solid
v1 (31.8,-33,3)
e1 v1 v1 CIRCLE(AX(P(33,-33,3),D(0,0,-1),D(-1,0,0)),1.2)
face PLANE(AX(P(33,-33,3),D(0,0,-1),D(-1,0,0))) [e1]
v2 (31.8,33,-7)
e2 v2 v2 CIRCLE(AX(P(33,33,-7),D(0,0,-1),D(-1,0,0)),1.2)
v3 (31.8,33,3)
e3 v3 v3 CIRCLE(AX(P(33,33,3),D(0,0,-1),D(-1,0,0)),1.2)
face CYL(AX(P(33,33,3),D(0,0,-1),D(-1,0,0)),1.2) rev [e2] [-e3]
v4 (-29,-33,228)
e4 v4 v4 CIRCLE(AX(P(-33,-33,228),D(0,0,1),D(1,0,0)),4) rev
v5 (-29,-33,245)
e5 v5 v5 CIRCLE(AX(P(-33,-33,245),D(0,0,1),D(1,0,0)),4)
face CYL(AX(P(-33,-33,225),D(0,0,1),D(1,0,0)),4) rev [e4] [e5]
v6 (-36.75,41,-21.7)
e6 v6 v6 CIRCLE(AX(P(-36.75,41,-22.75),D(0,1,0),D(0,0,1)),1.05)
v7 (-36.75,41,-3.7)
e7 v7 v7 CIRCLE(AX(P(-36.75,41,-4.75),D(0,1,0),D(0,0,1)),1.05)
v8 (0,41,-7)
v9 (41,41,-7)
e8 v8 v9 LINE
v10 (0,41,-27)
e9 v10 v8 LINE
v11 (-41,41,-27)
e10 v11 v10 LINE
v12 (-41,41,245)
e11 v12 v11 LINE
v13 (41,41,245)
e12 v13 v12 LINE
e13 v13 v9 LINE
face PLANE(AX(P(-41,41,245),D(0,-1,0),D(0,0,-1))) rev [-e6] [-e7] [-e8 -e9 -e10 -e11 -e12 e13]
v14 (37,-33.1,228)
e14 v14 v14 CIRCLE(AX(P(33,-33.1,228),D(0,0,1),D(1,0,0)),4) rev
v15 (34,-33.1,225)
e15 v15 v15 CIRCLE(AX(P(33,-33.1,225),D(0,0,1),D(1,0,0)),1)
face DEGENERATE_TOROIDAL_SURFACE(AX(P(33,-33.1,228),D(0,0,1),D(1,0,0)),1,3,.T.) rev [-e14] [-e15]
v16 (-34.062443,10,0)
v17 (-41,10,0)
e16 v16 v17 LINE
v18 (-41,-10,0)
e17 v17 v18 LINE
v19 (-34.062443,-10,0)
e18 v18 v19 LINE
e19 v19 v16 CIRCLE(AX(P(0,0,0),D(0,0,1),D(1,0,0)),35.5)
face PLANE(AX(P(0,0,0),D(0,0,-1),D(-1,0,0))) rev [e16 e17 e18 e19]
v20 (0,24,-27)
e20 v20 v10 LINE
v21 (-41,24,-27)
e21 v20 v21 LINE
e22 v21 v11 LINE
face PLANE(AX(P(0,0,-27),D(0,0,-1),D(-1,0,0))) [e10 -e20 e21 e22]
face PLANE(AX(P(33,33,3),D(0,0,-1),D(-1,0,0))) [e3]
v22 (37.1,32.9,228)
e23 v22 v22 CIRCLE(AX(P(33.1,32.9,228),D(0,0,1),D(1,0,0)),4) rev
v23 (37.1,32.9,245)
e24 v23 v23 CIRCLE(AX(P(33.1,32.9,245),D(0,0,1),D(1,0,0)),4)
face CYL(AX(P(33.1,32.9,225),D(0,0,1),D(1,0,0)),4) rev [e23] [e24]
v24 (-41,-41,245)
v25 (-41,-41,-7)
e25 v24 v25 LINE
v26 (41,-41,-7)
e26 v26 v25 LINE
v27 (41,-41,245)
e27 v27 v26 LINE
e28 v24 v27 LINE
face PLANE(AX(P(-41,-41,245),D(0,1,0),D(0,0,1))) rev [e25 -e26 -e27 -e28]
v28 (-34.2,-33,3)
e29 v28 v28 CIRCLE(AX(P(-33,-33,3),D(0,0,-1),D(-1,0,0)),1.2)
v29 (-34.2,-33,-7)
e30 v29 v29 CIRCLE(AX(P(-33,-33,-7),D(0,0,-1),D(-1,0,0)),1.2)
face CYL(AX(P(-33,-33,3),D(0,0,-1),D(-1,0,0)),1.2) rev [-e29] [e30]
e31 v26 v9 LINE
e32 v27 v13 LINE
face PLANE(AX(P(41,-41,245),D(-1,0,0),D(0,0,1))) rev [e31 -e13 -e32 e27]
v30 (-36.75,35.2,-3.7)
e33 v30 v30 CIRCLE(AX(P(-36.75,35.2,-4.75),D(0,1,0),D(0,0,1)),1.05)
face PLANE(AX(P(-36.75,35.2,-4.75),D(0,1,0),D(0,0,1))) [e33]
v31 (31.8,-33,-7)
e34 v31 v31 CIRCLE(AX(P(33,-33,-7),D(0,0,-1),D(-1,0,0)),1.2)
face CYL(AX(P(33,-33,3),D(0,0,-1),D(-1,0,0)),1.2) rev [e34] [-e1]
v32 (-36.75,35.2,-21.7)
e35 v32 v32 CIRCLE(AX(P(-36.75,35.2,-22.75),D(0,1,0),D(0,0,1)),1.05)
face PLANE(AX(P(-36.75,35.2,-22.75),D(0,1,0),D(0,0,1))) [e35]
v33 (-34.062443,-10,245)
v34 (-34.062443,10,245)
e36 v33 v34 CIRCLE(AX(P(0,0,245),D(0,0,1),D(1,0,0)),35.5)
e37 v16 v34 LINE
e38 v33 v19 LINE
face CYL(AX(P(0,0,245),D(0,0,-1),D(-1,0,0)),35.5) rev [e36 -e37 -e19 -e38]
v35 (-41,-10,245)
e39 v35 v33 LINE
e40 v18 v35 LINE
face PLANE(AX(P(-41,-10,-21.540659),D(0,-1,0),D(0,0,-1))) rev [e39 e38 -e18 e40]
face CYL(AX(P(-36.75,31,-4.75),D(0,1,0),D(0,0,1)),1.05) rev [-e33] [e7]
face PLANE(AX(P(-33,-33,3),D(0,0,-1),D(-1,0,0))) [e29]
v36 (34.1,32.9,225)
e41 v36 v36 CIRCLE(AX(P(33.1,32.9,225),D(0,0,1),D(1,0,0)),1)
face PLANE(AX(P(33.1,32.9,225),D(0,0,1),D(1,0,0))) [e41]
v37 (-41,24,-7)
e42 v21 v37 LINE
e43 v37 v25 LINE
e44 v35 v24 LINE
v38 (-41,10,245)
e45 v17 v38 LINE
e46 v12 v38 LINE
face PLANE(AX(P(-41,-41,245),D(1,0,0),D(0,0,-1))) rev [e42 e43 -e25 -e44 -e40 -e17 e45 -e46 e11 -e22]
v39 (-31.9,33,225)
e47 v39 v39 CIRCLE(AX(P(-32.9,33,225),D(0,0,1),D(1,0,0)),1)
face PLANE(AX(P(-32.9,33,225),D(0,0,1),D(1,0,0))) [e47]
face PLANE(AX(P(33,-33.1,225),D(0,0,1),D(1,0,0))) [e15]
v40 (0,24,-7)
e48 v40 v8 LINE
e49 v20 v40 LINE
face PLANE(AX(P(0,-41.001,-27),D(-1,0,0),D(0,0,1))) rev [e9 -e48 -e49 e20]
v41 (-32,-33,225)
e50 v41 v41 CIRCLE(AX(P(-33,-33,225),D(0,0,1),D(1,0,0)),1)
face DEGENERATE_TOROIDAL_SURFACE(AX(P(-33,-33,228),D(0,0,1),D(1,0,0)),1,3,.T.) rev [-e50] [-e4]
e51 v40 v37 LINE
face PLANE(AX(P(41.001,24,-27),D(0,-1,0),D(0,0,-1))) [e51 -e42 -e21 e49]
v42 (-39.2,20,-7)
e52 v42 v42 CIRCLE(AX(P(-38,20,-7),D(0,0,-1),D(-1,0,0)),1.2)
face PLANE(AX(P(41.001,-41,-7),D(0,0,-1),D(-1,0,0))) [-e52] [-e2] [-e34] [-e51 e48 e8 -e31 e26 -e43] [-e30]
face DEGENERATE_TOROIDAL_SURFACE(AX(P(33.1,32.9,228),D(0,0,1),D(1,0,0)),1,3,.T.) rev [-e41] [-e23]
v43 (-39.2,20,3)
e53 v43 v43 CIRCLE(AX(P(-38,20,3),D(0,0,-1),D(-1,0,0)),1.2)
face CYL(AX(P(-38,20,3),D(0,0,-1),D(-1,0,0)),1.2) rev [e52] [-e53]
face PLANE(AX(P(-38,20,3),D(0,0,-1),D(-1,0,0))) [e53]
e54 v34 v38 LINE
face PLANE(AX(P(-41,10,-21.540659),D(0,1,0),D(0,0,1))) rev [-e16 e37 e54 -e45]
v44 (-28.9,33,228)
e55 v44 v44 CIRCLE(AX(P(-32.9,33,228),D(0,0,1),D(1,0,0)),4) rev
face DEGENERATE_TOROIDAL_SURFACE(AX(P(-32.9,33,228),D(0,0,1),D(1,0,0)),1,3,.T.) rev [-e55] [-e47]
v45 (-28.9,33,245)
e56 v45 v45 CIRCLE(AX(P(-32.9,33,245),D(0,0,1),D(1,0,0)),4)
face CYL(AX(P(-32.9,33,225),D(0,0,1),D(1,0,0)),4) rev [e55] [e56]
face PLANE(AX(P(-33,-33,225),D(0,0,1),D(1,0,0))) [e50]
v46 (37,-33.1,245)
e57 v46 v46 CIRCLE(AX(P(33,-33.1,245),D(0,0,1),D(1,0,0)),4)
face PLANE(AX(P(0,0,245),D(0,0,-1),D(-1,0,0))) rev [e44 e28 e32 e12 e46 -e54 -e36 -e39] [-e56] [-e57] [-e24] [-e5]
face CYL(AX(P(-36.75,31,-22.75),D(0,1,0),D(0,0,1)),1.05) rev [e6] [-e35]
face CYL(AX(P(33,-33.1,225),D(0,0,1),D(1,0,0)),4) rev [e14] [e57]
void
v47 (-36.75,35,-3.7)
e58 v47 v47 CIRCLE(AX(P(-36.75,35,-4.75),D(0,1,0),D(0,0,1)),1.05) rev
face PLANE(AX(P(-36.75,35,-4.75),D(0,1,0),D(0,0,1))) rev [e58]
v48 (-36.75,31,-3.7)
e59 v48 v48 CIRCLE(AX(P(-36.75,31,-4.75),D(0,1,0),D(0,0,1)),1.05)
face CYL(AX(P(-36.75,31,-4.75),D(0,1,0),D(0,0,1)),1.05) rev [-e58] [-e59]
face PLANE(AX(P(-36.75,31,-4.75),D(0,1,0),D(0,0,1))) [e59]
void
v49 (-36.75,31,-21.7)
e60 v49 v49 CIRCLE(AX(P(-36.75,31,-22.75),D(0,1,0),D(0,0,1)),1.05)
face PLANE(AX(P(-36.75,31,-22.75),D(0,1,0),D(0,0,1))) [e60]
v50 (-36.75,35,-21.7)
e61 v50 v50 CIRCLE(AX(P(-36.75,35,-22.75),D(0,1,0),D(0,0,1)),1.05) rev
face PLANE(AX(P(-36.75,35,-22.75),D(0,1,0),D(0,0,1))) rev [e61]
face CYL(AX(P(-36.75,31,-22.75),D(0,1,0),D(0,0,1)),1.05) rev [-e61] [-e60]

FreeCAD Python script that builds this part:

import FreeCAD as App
import Part
import Sketcher
from FreeCAD import Vector
Q = App.Units.Quantity


def edges_at(feature, points):
    """Names of the edges that pass closest to the given points."""
    edges = feature.Shape.Edges
    near = lambda p: min(range(len(edges)), key=lambda i: edges[i].distToShape(Part.Vertex(*p))[0])
    return sorted({f"Edge{near(p) + 1}" for p in points})


def add_polygon(sketch, points):
    """Adds a closed chain of lines whose ends are joined by coincident constraints."""
    first, n = sketch.GeometryCount, len(points)
    for a, b in zip(points, points[1:] + points[:1]):
        sketch.addGeometry(Part.LineSegment(App.Vector(*a, 0), App.Vector(*b, 0)), False)
    for i in range(n):
        sketch.addConstraint(Sketcher.Constraint("Coincident", first + i, 2, first + (i + 1) % n, 1))

doc = App.newDocument("Part")
params = doc.addObject("Spreadsheet::Sheet", "Params")
for row, (alias, value) in enumerate([
    ("sketch1_diameter", "71 mm"),
    ("sketch1_width", "82 mm"),
    ("pad1_length", "245 mm"),
    ("sketch2_width", "82 mm"),
    ("pad2_length", "27 mm"),
    ("sketch3_width", "8 mm"),
    ("sketch3_height", "20 mm"),
    ("pocket1_length", "245 mm"),
    ("sketch4_diameter", "8 mm"),
    ("pocket2_length", "20 mm"),
    ("fillet_radius", "3 mm"),
    ("fillet2_radius", "3 mm"),
    ("fillet3_radius", "3 mm"),
    ("fillet4_radius", "3 mm"),
    ("sketch5_diameter", "2.1 mm"),
    ("pocket3_length", "10 mm"),
    ("sketch6_diameter", "2.1 mm"),
    ("pad3_length", "0.2 mm"),
    ("sketch7_width", "65 mm"),
    ("sketch7_height", "20 mm"),
    ("sketch8_width", "41 mm"),
    ("sketch8_height", "20 mm"),
    ("sketch9_diameter", "2.4 mm"),
    ("pocket6_length", "10 mm"),
], start=1):
    params.set(f"A{row}", alias)
    params.set(f"B{row}", "=" + value)
    params.setAlias(f"B{row}", alias)

body = doc.addObject("PartDesign::Body", "Body")

sketch1 = body.newObject("Sketcher::SketchObject", "Sketch")
sketch1.AttachmentSupport = (doc.getObject("XY_Plane"), [""])
sketch1.MapMode = "FlatFace"
add_polygon(sketch1, [(-41, 41), (-41, -41), (41, -41), (41, 41)])
sketch1.addGeometry(Part.Circle(Vector(0, 0, 0), Vector(0, 0, 1), 35.5), False)
sketch1.addConstraint(Sketcher.Constraint("Vertical", 0))
sketch1.addConstraint(Sketcher.Constraint("Horizontal", 1))
sketch1.addConstraint(Sketcher.Constraint("Vertical", 2))
sketch1.addConstraint(Sketcher.Constraint("Horizontal", 3))
sketch1.addConstraint(Sketcher.Constraint("Coincident", 4, 3, -1, 1))
sketch1.addConstraint(Sketcher.Constraint("Symmetric", 0, 2, 2, 2, -1, 1))
sketch1.addConstraint(Sketcher.Constraint("Equal", 3, 0))
sketch1.addConstraint(Sketcher.Constraint("Diameter", 4, Q("71 mm")))
sketch1.addConstraint(Sketcher.Constraint("DistanceX", 1, 1, 1, 2, Q("82 mm")))
sketch1.setExpression("Constraints[11]", "Params.sketch1_diameter")
sketch1.setExpression("Constraints[12]", "Params.sketch1_width")
pad1 = body.newObject("PartDesign::Pad", "Pad")
pad1.Profile = sketch1
pad1.setExpression("Length", "Params.pad1_length")

sketch2 = body.newObject("Sketcher::SketchObject", "Sketch001")
sketch2.AttachmentSupport = (doc.getObject("XY_Plane"), [""])
sketch2.MapMode = "FlatFace"
add_polygon(sketch2, [(41, 41), (41, -41), (-41, -41), (-41, 41)])
sketch2.addConstraint(Sketcher.Constraint("Vertical", 0))
sketch2.addConstraint(Sketcher.Constraint("Horizontal", 1))
sketch2.addConstraint(Sketcher.Constraint("Vertical", 2))
sketch2.addConstraint(Sketcher.Constraint("Horizontal", 3))
sketch2.addConstraint(Sketcher.Constraint("Symmetric", 0, 2, 2, 2, -1, 1))
sketch2.addConstraint(Sketcher.Constraint("Equal", 3, 0))
sketch2.addConstraint(Sketcher.Constraint("DistanceX", 1, 2, 1, 1, Q("82 mm")))
sketch2.setExpression("Constraints[10]", "Params.sketch2_width")
pad2 = body.newObject("PartDesign::Pad", "Pad001")
pad2.Profile = sketch2
pad2.setExpression("Length", "Params.pad2_length")
pad2.Reversed = True

sketch3 = body.newObject("Sketcher::SketchObject", "Sketch002")
sketch3.AttachmentSupport = (doc.getObject("XY_Plane"), [""])
sketch3.MapMode = "FlatFace"
sketch3.AttachmentOffset = App.Placement(Vector(0, 0, 245), App.Rotation())
add_polygon(sketch3, [(-41, 10), (-41, -10), (-33, -10), (-33, 10)])
sketch3.addConstraint(Sketcher.Constraint("Vertical", 0))
sketch3.addConstraint(Sketcher.Constraint("Horizontal", 1))
sketch3.addConstraint(Sketcher.Constraint("Vertical", 2))
sketch3.addConstraint(Sketcher.Constraint("Horizontal", 3))
sketch3.addConstraint(Sketcher.Constraint("DistanceX", 1, 1, 1, 2, Q("8 mm")))
sketch3.addConstraint(Sketcher.Constraint("DistanceY", 0, 2, 0, 1, Q("20 mm")))
sketch3.addConstraint(Sketcher.Constraint("DistanceX", 0, 2, -1, 1, Q("41 mm")))
sketch3.addConstraint(Sketcher.Constraint("DistanceY", 0, 2, -1, 1, Q("10 mm")))
sketch3.setExpression("Constraints[8]", "Params.sketch3_width")
sketch3.setExpression("Constraints[9]", "Params.sketch3_height")
pocket1 = body.newObject("PartDesign::Pocket", "Pocket")
pocket1.Profile = sketch3
pocket1.setExpression("Length", "Params.pocket1_length")

sketch4 = body.newObject("Sketcher::SketchObject", "Sketch003")
sketch4.AttachmentSupport = (doc.getObject("XY_Plane"), [""])
sketch4.MapMode = "FlatFace"
sketch4.AttachmentOffset = App.Placement(Vector(0, 0, 245), App.Rotation())
sketch4.addGeometry(Part.Circle(Vector(-32.9, 33, 0), Vector(0, 0, 1), 4), False)
sketch4.addGeometry(Part.Circle(Vector(33.1, 32.9, 0), Vector(0, 0, 1), 4), False)
sketch4.addGeometry(Part.Circle(Vector(33, -33.1, 0), Vector(0, 0, 1), 4), False)
sketch4.addGeometry(Part.Circle(Vector(-33, -33, 0), Vector(0, 0, 1), 4), False)
sketch4.addConstraint(Sketcher.Constraint("Equal", 0, 1))
sketch4.addConstraint(Sketcher.Constraint("Equal", 1, 2))
sketch4.addConstraint(Sketcher.Constraint("Equal", 2, 3))
sketch4.addConstraint(Sketcher.Constraint("Diameter", 0, Q("8 mm")))
sketch4.addConstraint(Sketcher.Constraint("DistanceY", -1, 1, 0, 3, Q("33 mm")))
sketch4.addConstraint(Sketcher.Constraint("DistanceX", -1, 1, 2, 3, Q("33 mm")))
sketch4.addConstraint(Sketcher.Constraint("DistanceX", 3, 3, -1, 1, Q("33 mm")))
sketch4.addConstraint(Sketcher.Constraint("DistanceY", 3, 3, -1, 1, Q("33 mm")))
sketch4.addConstraint(Sketcher.Constraint("DistanceX", 0, 3, 1, 3, Q("66 mm")))
sketch4.addConstraint(Sketcher.Constraint("DistanceY", 2, 3, 1, 3, Q("66 mm")))
sketch4.addConstraint(Sketcher.Constraint("DistanceX", 0, 3, -1, 1, Q("32.9 mm")))
sketch4.addConstraint(Sketcher.Constraint("DistanceY", -1, 1, 1, 3, Q("32.9 mm")))
sketch4.setExpression("Constraints[3]", "Params.sketch4_diameter")
pocket2 = body.newObject("PartDesign::Pocket", "Pocket001")
pocket2.Profile = sketch4
pocket2.setExpression("Length", "Params.pocket2_length")
doc.recompute()

fillet = body.newObject("PartDesign::Fillet", "Fillet")
fillet.Base = (pocket2, edges_at(pocket2, [(-36.9, 33, 225)]))
fillet.setExpression("Radius", "Params.fillet_radius")
doc.recompute()

fillet2 = body.newObject("PartDesign::Fillet", "Fillet001")
fillet2.Base = (fillet, edges_at(fillet, [(29.1, 32.9, 225)]))
fillet2.setExpression("Radius", "Params.fillet2_radius")
doc.recompute()

fillet3 = body.newObject("PartDesign::Fillet", "Fillet002")
fillet3.Base = (fillet2, edges_at(fillet2, [(-37, -33, 225)]))
fillet3.setExpression("Radius", "Params.fillet3_radius")
doc.recompute()

fillet4 = body.newObject("PartDesign::Fillet", "Fillet003")
fillet4.Base = (fillet3, edges_at(fillet3, [(29, -33.1, 225)]))
fillet4.setExpression("Radius", "Params.fillet4_radius")

sketch5 = body.newObject("Sketcher::SketchObject", "Sketch004")
sketch5.AttachmentSupport = (doc.getObject("XZ_Plane"), [""])
sketch5.MapMode = "FlatFace"
sketch5.AttachmentOffset = App.Placement(Vector(0, 0, -41), App.Rotation())
sketch5.addGeometry(Part.Circle(Vector(-36.75, -22.75, 0), Vector(0, 0, 1), 1.05), False)
sketch5.addGeometry(Part.Circle(Vector(-36.75, -4.75, 0), Vector(0, 0, 1), 1.05), False)
sketch5.addConstraint(Sketcher.Constraint("Equal", 0, 1))
sketch5.addConstraint(Sketcher.Constraint("Vertical", 0, 3, 1, 3))
sketch5.addConstraint(Sketcher.Constraint("Diameter", 0, Q("2.1 mm")))
sketch5.addConstraint(Sketcher.Constraint("DistanceY", 0, 3, 1, 3, Q("18 mm")))
sketch5.addConstraint(Sketcher.Constraint("DistanceX", 0, 3, -1, 1, Q("36.75 mm")))
sketch5.addConstraint(Sketcher.Constraint("DistanceY", 0, 3, -1, 1, Q("22.75 mm")))
sketch5.setExpression("Constraints[2]", "Params.sketch5_diameter")
pocket3 = body.newObject("PartDesign::Pocket", "Pocket002")
pocket3.Profile = sketch5
pocket3.setExpression("Length", "Params.pocket3_length")
pocket3.Reversed = True

sketch6 = body.newObject("Sketcher::SketchObject", "Sketch005")
sketch6.AttachmentSupport = (doc.getObject("XZ_Plane"), [""])
sketch6.MapMode = "FlatFace"
sketch6.AttachmentOffset = App.Placement(Vector(0, 0, -35.2), App.Rotation())
sketch6.addGeometry(Part.Circle(Vector(-36.75, -22.75, 0), Vector(0, 0, 1), 1.05), False)
sketch6.addGeometry(Part.Circle(Vector(-36.75, -4.75, 0), Vector(0, 0, 1), 1.05), False)
sketch6.addConstraint(Sketcher.Constraint("Equal", 0, 1))
sketch6.addConstraint(Sketcher.Constraint("Vertical", 0, 3, 1, 3))
sketch6.addConstraint(Sketcher.Constraint("Diameter", 0, Q("2.1 mm")))
sketch6.addConstraint(Sketcher.Constraint("DistanceY", 0, 3, 1, 3, Q("18 mm")))
sketch6.addConstraint(Sketcher.Constraint("DistanceX", 0, 3, -1, 1, Q("36.75 mm")))
sketch6.addConstraint(Sketcher.Constraint("DistanceY", 0, 3, -1, 1, Q("22.75 mm")))
sketch6.setExpression("Constraints[2]", "Params.sketch6_diameter")
pad3 = body.newObject("PartDesign::Pad", "Pad002")
pad3.Profile = sketch6
pad3.setExpression("Length", "Params.pad3_length")

sketch7 = body.newObject("Sketcher::SketchObject", "Sketch006")
sketch7.AttachmentSupport = (doc.getObject("YZ_Plane"), [""])
sketch7.MapMode = "FlatFace"
sketch7.AttachmentOffset = App.Placement(Vector(0, 0, -41), App.Rotation())
add_polygon(sketch7, [(24, -7), (-41, -7), (-41, -27), (24, -27)])
sketch7.addConstraint(Sketcher.Constraint("Horizontal", 0))
sketch7.addConstraint(Sketcher.Constraint("Vertical", 1))
sketch7.addConstraint(Sketcher.Constraint("Horizontal", 2))
sketch7.addConstraint(Sketcher.Constraint("Vertical", 3))
sketch7.addConstraint(Sketcher.Constraint("DistanceX", 0, 2, 0, 1, Q("65 mm")))
sketch7.addConstraint(Sketcher.Constraint("DistanceY", 1, 2, 1, 1, Q("20 mm")))
sketch7.addConstraint(Sketcher.Constraint("DistanceX", 0, 2, -1, 1, Q("41 mm")))
sketch7.addConstraint(Sketcher.Constraint("DistanceY", 0, 2, -1, 1, Q("7 mm")))
sketch7.setExpression("Constraints[8]", "Params.sketch7_width")
sketch7.setExpression("Constraints[9]", "Params.sketch7_height")
pocket4 = body.newObject("PartDesign::Pocket", "Pocket003")
pocket4.Profile = sketch7
pocket4.Type = "UpToFirst"
pocket4.Reversed = True

sketch8 = body.newObject("Sketcher::SketchObject", "Sketch007")
sketch8.AttachmentSupport = (doc.getObject("XZ_Plane"), [""])
sketch8.MapMode = "FlatFace"
sketch8.AttachmentOffset = App.Placement(Vector(0, 0, -41), App.Rotation())
add_polygon(sketch8, [(0, -27), (0, -7), (41, -7), (41, -27)])
sketch8.addConstraint(Sketcher.Constraint("Vertical", 0))
sketch8.addConstraint(Sketcher.Constraint("Horizontal", 1))
sketch8.addConstraint(Sketcher.Constraint("Vertical", 2))
sketch8.addConstraint(Sketcher.Constraint("Horizontal", 3))
sketch8.addConstraint(Sketcher.Constraint("PointOnObject", 0, 2, -2))
sketch8.addConstraint(Sketcher.Constraint("DistanceX", 1, 1, 1, 2, Q("41 mm")))
sketch8.addConstraint(Sketcher.Constraint("DistanceY", 0, 1, 0, 2, Q("20 mm")))
sketch8.addConstraint(Sketcher.Constraint("DistanceY", 0, 2, -1, 1, Q("7 mm")))
sketch8.setExpression("Constraints[9]", "Params.sketch8_width")
sketch8.setExpression("Constraints[10]", "Params.sketch8_height")
pocket5 = body.newObject("PartDesign::Pocket", "Pocket004")
pocket5.Profile = sketch8
pocket5.Type = "UpToFirst"
pocket5.Reversed = True

sketch9 = body.newObject("Sketcher::SketchObject", "Sketch008")
sketch9.AttachmentSupport = (doc.getObject("XY_Plane"), [""])
sketch9.MapMode = "FlatFace"
sketch9.AttachmentOffset = App.Placement(Vector(0, 0, -7), App.Rotation())
sketch9.addGeometry(Part.Circle(Vector(33, 33, 0), Vector(0, 0, 1), 1.2), False)
sketch9.addGeometry(Part.Circle(Vector(33, -33, 0), Vector(0, 0, 1), 1.2), False)
sketch9.addGeometry(Part.Circle(Vector(-33, -33, 0), Vector(0, 0, 1), 1.2), False)
sketch9.addGeometry(Part.Circle(Vector(-38, 20, 0), Vector(0, 0, 1), 1.2), False)
sketch9.addConstraint(Sketcher.Constraint("Equal", 0, 1))
sketch9.addConstraint(Sketcher.Constraint("Equal", 1, 2))
sketch9.addConstraint(Sketcher.Constraint("Equal", 2, 3))
sketch9.addConstraint(Sketcher.Constraint("Symmetric", 0, 3, 2, 3, -1, 1))
sketch9.addConstraint(Sketcher.Constraint("Symmetric", 1, 3, 2, 3, -2))
sketch9.addConstraint(Sketcher.Constraint("Diameter", 0, Q("2.4 mm")))
sketch9.addConstraint(Sketcher.Constraint("DistanceX", -1, 1, 0, 3, Q("33 mm")))
sketch9.addConstraint(Sketcher.Constraint("DistanceY", -1, 1, 0, 3, Q("33 mm")))
sketch9.addConstraint(Sketcher.Constraint("DistanceX", 3, 3, -1, 1, Q("38 mm")))
sketch9.addConstraint(Sketcher.Constraint("DistanceY", -1, 1, 3, 3, Q("20 mm")))
sketch9.setExpression("Constraints[5]", "Params.sketch9_diameter")
pocket6 = body.newObject("PartDesign::Pocket", "Pocket005")
pocket6.Profile = sketch9
pocket6.setExpression("Length", "Params.pocket6_length")
pocket6.Reversed = True

doc.recompute()
